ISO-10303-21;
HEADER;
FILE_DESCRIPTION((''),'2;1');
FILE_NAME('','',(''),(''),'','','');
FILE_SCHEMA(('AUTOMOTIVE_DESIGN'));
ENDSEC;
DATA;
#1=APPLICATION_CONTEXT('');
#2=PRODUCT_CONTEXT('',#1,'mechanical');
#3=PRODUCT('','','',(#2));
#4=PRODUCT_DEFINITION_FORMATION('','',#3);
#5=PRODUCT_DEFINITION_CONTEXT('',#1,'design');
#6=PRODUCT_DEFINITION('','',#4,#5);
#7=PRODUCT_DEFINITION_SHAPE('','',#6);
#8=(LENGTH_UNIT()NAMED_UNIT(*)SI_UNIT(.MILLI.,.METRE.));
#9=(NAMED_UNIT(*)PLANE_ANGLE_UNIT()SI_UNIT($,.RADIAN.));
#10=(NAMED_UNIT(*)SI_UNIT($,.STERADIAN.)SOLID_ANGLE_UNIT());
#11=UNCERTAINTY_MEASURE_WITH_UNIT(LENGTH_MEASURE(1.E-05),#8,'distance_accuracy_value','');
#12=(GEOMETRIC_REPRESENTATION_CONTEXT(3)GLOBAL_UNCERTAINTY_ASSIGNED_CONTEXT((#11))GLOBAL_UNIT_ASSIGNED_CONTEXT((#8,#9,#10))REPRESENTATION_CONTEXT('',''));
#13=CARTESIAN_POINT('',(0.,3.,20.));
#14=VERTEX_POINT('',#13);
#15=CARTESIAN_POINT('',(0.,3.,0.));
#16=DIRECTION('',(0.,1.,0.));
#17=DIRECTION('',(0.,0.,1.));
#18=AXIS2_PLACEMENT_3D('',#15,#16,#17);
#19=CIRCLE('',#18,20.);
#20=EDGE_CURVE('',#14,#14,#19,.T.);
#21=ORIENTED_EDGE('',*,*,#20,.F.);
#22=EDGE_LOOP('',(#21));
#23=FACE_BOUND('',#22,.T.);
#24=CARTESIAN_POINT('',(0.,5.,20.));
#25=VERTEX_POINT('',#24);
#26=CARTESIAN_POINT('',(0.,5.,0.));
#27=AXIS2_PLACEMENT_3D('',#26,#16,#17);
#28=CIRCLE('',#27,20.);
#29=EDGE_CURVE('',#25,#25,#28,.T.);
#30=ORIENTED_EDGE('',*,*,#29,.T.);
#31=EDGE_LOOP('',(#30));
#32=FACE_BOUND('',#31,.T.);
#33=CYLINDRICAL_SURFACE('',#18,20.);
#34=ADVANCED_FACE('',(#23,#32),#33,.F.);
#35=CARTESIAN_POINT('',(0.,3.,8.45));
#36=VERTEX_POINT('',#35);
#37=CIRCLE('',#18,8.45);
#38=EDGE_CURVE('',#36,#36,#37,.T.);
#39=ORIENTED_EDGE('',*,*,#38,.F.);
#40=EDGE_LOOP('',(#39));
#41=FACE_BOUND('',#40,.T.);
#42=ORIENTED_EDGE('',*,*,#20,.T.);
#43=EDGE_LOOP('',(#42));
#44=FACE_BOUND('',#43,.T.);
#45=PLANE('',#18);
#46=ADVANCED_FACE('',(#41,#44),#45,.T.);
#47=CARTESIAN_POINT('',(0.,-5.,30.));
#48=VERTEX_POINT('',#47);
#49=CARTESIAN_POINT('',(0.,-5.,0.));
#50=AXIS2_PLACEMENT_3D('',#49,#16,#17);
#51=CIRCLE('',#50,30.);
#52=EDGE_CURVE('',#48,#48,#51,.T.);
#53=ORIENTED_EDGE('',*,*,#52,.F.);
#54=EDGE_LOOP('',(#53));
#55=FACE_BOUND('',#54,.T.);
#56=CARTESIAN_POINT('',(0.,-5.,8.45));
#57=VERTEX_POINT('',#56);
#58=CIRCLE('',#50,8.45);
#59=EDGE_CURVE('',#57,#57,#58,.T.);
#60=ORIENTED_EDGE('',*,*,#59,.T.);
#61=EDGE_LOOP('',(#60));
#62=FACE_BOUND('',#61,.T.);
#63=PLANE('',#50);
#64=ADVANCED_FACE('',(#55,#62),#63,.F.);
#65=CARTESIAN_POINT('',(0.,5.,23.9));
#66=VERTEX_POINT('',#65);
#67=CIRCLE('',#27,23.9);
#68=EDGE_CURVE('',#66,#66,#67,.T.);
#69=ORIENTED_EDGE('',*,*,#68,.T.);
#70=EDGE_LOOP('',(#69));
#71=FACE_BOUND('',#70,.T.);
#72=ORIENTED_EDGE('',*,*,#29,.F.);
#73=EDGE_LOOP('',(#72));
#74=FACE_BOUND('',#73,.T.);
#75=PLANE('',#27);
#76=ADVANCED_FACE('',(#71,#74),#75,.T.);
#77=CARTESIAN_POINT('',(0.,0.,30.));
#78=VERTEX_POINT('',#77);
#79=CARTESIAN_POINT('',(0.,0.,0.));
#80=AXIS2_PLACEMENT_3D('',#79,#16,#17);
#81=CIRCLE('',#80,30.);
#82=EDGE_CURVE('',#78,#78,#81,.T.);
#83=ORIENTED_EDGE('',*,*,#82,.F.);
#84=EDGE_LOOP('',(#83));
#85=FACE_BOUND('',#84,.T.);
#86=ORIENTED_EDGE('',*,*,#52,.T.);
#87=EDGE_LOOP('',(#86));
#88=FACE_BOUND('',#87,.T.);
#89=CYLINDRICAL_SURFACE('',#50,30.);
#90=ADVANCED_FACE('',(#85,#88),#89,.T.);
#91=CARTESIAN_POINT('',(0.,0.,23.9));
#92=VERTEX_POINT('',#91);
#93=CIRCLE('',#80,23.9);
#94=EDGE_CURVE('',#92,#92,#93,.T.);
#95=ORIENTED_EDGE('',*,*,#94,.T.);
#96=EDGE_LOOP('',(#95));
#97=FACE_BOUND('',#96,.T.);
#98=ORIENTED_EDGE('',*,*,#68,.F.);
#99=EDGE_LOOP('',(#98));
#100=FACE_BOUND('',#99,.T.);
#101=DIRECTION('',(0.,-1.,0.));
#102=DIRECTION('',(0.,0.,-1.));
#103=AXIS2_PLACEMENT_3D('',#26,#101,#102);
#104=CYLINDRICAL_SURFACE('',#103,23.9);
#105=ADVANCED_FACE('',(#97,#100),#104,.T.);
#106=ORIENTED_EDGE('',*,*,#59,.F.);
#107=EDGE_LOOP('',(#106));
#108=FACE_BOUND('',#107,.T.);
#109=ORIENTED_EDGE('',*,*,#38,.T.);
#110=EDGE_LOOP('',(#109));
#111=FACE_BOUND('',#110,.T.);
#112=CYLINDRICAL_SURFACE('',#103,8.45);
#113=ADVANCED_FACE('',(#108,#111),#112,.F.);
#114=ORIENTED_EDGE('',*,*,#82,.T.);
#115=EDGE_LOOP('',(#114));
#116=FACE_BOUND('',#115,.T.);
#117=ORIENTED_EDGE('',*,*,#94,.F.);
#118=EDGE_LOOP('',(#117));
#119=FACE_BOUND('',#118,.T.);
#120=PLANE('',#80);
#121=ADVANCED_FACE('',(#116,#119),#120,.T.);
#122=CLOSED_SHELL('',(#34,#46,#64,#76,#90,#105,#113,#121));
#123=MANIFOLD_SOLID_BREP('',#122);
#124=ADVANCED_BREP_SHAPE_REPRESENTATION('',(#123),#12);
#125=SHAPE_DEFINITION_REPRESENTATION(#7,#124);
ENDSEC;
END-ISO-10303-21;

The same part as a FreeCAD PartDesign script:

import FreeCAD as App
import Part
import Sketcher
from FreeCAD import Vector
Q = App.Units.Quantity

doc = App.newDocument("Part")
params = doc.addObject("Spreadsheet::Sheet", "Params")
for row, (alias, value) in enumerate([
    ("sketch1_diameter", "47.8 mm"),
    ("sketch1_diameter2", "16.9 mm"),
    ("pad1_length", "5 mm"),
    ("sketch2_diameter", "60 mm"),
    ("sketch2_diameter2", "16.9 mm"),
    ("pad2_length", "5 mm"),
    ("sketch3_diameter", "40 mm"),
    ("pocket1_length", "2 mm"),
], start=1):
    params.set(f"A{row}", alias)
    params.set(f"B{row}", "=" + value)
    params.setAlias(f"B{row}", alias)

body = doc.addObject("PartDesign::Body", "Body")

# Sketch on XZ plane
sketch1 = body.newObject("Sketcher::SketchObject", "Sketch")
sketch1.AttachmentSupport = (doc.getObject("XZ_Plane"), [""])
sketch1.MapMode = "FlatFace"
sketch1.addGeometry([
    Part.Circle(Vector(0, 0, 0), Vector(0, 0, 1), 24),
    Part.Circle(Vector(0, 0, 0), Vector(0, 0, 1), 8),
], False)
sketch1.addConstraint([
    Sketcher.Constraint("Coincident", 0, 3, -1, 1),
    Sketcher.Constraint("Coincident", 1, 3, -1, 1),
    Sketcher.Constraint("Diameter", 0, Q("47.8 mm")),
    Sketcher.Constraint("Diameter", 1, Q("16.9 mm")),
])
sketch1.setExpression("Constraints[2]", "Params.sketch1_diameter")
sketch1.setExpression("Constraints[3]", "Params.sketch1_diameter2")
pad1 = body.newObject("PartDesign::Pad", "Pad")
pad1.Profile = sketch1
pad1.setExpression("Length", "Params.pad1_length")
pad1.Reversed = True

# Sketch on XZ plane
sketch2 = body.newObject("Sketcher::SketchObject", "Sketch001")
sketch2.AttachmentSupport = (doc.getObject("XZ_Plane"), [""])
sketch2.MapMode = "FlatFace"
sketch2.addGeometry([
    Part.Circle(Vector(0, 0, 0), Vector(0, 0, 1), 30),
    Part.Circle(Vector(0, 0, 0), Vector(0, 0, 1), 8),
], False)
sketch2.addConstraint([
    Sketcher.Constraint("Coincident", 0, 3, -1, 1),
    Sketcher.Constraint("Coincident", 1, 3, -1, 1),
    Sketcher.Constraint("Diameter", 0, Q("60 mm")),
    Sketcher.Constraint("Diameter", 1, Q("16.9 mm")),
])
sketch2.setExpression("Constraints[2]", "Params.sketch2_diameter")
sketch2.setExpression("Constraints[3]", "Params.sketch2_diameter2")
pad2 = body.newObject("PartDesign::Pad", "Pad001")
pad2.Profile = sketch2
pad2.setExpression("Length", "Params.pad2_length")

# Sketch on XZ plane
sketch3 = body.newObject("Sketcher::SketchObject", "Sketch002")
sketch3.AttachmentSupport = (doc.getObject("XZ_Plane"), [""])
sketch3.MapMode = "FlatFace"
sketch3.AttachmentOffset = App.Placement(Vector(0, 0, -5), App.Rotation())
sketch3.addGeometry(Part.Circle(Vector(0, 0, 0), Vector(0, 0, 1), 20), False)
sketch3.addConstraint([
    Sketcher.Constraint("Coincident", 0, 3, -1, 1),
    Sketcher.Constraint("Diameter", 0, Q("40 mm")),
])
sketch3.setExpression("Constraints[1]", "Params.sketch3_diameter")
pocket1 = body.newObject("PartDesign::Pocket", "Pocket")
pocket1.Profile = sketch3
pocket1.setExpression("Length", "Params.pocket1_length")
pocket1.Reversed = True

doc.recompute()
